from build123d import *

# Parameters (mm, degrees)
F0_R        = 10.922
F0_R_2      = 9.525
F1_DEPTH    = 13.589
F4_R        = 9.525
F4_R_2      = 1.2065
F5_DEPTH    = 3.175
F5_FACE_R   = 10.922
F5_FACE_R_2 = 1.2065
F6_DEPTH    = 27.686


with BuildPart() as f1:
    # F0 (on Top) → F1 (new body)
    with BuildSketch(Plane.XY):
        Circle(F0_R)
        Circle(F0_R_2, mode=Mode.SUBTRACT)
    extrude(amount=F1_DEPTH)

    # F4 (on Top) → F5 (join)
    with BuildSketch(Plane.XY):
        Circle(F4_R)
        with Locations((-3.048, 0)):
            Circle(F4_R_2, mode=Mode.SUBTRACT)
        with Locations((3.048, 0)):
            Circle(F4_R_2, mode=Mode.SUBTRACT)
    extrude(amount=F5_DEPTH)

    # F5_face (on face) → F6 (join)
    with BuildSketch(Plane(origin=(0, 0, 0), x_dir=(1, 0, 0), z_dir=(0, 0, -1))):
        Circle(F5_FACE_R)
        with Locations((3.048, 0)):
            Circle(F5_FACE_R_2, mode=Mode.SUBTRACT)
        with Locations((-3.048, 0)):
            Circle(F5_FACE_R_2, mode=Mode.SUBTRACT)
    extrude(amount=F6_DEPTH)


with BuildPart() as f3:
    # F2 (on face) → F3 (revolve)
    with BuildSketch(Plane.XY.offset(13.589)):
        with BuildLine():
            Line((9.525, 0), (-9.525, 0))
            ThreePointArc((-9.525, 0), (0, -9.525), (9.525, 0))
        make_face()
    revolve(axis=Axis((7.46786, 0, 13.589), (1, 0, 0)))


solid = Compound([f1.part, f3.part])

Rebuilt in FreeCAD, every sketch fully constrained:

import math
import FreeCAD as App
import Part
import Sketcher

V = App.Vector
Q = App.Units.Quantity

doc = App.newDocument("Part")
body = doc.addObject("PartDesign::Body", "Body")

# Sketch on XY plane
sketch1 = body.newObject("Sketcher::SketchObject", "Sketch")
sketch1.AttachmentSupport = (doc.getObject("XY_Plane"), [""])
sketch1.MapMode = "FlatFace"
sketch1.addGeometry([
    Part.Circle(V(0, 0, 0), V(0, 0, 1), 11),
    Part.Circle(V(0, 0, 0), V(0, 0, 1), 10),
], False)
sketch1.addConstraint([
    Sketcher.Constraint("Coincident", 0, 3, -1, 1),
    Sketcher.Constraint("Coincident", 1, 3, -1, 1),
    Sketcher.Constraint("Diameter", 0, Q("0.86 in")),
    Sketcher.Constraint("Diameter", 1, Q("0.75 in")),
])
pad1 = body.newObject("PartDesign::Pad", "Pad")
pad1.Profile = sketch1
pad1.Length = Q("0.535 in")

# Sketch on XY plane
sketch2 = body.newObject("Sketcher::SketchObject", "Sketch001")
sketch2.AttachmentSupport = (doc.getObject("XY_Plane"), [""])
sketch2.MapMode = "FlatFace"
sketch2.addGeometry([
    Part.Circle(V(0, 0, 0), V(0, 0, 1), 9.5),
    Part.Circle(V(-3, 0, 0), V(0, 0, 1), 1.2),
    Part.Circle(V(3, 0, 0), V(0, 0, 1), 1.2),
], False)
sketch2.addConstraint([
    Sketcher.Constraint("Coincident", 0, 3, -1, 1),
    Sketcher.Constraint("Equal", 1, 2),
    Sketcher.Constraint("Symmetric", 1, 3, 2, 3, -1, 1),
    Sketcher.Constraint("PointOnObject", 1, 3, -1),
    Sketcher.Constraint("Diameter", 0, Q("0.75 in")),
    Sketcher.Constraint("Diameter", 1, Q("0.095 in")),
    Sketcher.Constraint("DistanceX", 1, 3, -1, 1, Q("0.12 in")),
])
pad2 = body.newObject("PartDesign::Pad", "Pad001")
pad2.Profile = sketch2
pad2.Length = Q("0.125 in")

# Sketch on XY plane
sketch3 = body.newObject("Sketcher::SketchObject", "Sketch002")
sketch3.AttachmentSupport = (doc.getObject("XY_Plane"), [""])
sketch3.MapMode = "FlatFace"
sketch3.addGeometry([
    Part.Circle(V(0, 0, 0), V(0, 0, 1), 10.9),
    Part.Circle(V(-3, 0, 0), V(0, 0, 1), 1.2),
    Part.Circle(V(3, 0, 0), V(0, 0, 1), 1.2),
], False)
sketch3.addConstraint([
    Sketcher.Constraint("Coincident", 0, 3, -1, 1),
    Sketcher.Constraint("Equal", 1, 2),
    Sketcher.Constraint("Symmetric", 1, 3, 2, 3, -1, 1),
    Sketcher.Constraint("PointOnObject", 1, 3, -1),
    Sketcher.Constraint("Diameter", 0, Q("0.86 in")),
    Sketcher.Constraint("Diameter", 1, Q("0.095 in")),
    Sketcher.Constraint("DistanceX", 1, 3, -1, 1, Q("0.12 in")),
])
pad3 = body.newObject("PartDesign::Pad", "Pad002")
pad3.Profile = sketch3
pad3.Length = Q("1.09 in")
pad3.Reversed = True
body2 = doc.addObject("PartDesign::Body", "Body001")

# Sketch on XY plane
sketch4 = body2.newObject("Sketcher::SketchObject", "Sketch003")
sketch4.AttachmentSupport = (doc.getObject("XY_Plane001"), [""])
sketch4.MapMode = "FlatFace"
sketch4.AttachmentOffset = App.Placement(V(0, 0, 0.535 * 25.4), App.Rotation())
sketch4.addGeometry([
    Part.LineSegment(V(10, 0, 0), V(-10, 0, 0)),
    Part.ArcOfCircle(Part.Circle(V(0, 0, 0), V(0, 0, 1), 10), math.radians(180), math.radians(360)),
], False)
sketch4.addConstraint([
    Sketcher.Constraint("Coincident", 0, 1, 1, 2),
    Sketcher.Constraint("Coincident", 1, 1, 0, 2),
    Sketcher.Constraint("Horizontal", 0),
    Sketcher.Constraint("Coincident", 1, 3, -1, 1),
    Sketcher.Constraint("PointOnObject", 0, 1, -1),
    Sketcher.Constraint("Radius", 1, Q("0.375 in")),
])
revolution = body2.newObject("PartDesign::Revolution", "Revolution")
revolution.Profile = sketch4
revolution.ReferenceAxis = (sketch4, ["H_Axis"])
revolution.Angle = 360

doc.recompute()
